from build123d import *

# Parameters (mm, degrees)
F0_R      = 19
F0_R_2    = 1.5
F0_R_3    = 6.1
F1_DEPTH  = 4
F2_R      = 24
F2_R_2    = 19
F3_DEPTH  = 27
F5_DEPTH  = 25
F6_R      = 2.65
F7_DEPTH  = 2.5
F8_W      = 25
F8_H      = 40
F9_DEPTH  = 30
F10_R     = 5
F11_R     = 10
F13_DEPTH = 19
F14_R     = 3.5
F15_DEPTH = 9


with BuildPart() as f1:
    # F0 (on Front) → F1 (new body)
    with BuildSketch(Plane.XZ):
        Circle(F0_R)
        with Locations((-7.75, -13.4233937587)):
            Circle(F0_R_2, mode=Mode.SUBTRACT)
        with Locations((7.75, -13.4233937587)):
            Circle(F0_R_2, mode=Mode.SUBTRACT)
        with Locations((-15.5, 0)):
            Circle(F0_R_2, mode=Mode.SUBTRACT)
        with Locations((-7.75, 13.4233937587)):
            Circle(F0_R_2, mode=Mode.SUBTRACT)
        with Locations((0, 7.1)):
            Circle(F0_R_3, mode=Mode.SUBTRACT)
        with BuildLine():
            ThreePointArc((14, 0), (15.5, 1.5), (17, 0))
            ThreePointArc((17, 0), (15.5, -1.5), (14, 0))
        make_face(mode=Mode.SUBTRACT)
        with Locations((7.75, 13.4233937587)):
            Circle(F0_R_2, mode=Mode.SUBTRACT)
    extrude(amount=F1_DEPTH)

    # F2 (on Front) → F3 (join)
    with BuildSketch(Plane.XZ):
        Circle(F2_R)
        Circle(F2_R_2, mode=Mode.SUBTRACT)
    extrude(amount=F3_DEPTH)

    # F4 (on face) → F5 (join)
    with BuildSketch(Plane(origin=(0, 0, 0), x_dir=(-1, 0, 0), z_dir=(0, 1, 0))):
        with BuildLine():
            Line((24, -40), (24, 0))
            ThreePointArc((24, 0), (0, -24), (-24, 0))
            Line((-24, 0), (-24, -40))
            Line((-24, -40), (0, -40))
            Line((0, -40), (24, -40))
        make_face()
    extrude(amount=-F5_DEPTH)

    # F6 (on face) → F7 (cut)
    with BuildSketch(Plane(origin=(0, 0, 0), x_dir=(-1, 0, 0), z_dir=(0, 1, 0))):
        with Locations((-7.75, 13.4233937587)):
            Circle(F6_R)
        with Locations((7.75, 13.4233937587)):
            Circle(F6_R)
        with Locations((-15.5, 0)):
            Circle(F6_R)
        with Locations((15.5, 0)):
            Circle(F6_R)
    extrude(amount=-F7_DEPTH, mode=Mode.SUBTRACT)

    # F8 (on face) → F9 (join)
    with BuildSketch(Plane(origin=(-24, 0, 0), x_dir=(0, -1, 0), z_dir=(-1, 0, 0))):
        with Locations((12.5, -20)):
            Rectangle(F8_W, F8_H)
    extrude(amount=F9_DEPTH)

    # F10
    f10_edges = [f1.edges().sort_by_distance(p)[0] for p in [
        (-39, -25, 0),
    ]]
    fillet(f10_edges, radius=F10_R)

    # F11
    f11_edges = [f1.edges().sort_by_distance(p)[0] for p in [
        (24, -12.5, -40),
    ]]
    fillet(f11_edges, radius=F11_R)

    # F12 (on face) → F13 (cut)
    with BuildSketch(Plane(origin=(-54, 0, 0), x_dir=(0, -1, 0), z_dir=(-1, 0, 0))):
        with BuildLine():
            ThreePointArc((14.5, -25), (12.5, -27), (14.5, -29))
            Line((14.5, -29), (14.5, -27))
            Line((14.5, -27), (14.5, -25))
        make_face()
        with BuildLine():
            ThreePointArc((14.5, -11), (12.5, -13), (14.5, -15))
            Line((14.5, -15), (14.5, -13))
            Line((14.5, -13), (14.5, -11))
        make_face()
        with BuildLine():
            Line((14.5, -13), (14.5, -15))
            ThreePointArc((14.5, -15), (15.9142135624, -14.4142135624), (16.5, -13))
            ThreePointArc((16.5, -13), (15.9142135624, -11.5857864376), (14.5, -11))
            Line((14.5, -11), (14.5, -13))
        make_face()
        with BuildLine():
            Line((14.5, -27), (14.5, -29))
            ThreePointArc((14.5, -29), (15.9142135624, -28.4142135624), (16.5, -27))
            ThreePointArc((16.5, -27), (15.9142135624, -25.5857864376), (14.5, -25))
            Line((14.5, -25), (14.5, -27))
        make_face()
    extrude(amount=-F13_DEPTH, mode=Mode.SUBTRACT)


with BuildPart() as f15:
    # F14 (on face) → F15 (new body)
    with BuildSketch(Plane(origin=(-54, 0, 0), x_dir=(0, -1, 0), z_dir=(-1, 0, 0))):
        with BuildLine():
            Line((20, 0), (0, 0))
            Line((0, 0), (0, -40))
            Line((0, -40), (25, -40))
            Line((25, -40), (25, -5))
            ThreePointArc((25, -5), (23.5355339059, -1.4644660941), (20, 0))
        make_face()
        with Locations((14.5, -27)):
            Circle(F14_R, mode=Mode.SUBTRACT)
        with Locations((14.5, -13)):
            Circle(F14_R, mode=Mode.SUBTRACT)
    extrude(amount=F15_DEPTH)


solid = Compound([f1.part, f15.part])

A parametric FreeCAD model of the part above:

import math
import FreeCAD as App
import Part
import Sketcher

V = App.Vector
Q = App.Units.Quantity


def edges_at(feature, points):
    """Names of the edges that pass closest to the given points."""
    edges = feature.Shape.Edges
    near = lambda p: min(range(len(edges)), key=lambda i: edges[i].distToShape(Part.Vertex(*p))[0])
    return sorted({f"Edge{near(p) + 1}" for p in points})

doc = App.newDocument("Part")
body = doc.addObject("PartDesign::Body", "Body")

# Sketch on XZ plane
sketch1 = doc.addObject("Sketcher::SketchObject", "Sketch")
body.addObject(sketch1)
sketch1.AttachmentSupport = (doc.XZ_Plane, [""])
sketch1.MapMode = "FlatFace"
sketch1.addGeometry([
    Part.Circle(V(0, 0, 0), V(0, 0, 1), 19),  # 0
    Part.Circle(V(-7.75, -13.423394, 0), V(0, 0, 1), 1.5),  # 1
    Part.Circle(V(7.75, -13.423394, 0), V(0, 0, 1), 1.5),  # 2
    Part.Circle(V(-15.5, 0, 0), V(0, 0, 1), 1.5),  # 3
    Part.Circle(V(-7.75, 13.423394, 0), V(0, 0, 1), 1.5),  # 4
    Part.Circle(V(0, 7.1, 0), V(0, 0, 1), 6.1),  # 5
    Part.Circle(V(15.5, 0, 0), V(0, 0, 1), 1.5),  # 6
    Part.Circle(V(7.75, 13.423394, 0), V(0, 0, 1), 1.5),  # 7
], False)
sketch1.addConstraint([
    Sketcher.Constraint("Coincident", 0, 3, -1, 1),
    Sketcher.Constraint("Equal", 1, 2),
    Sketcher.Constraint("Equal", 2, 3),
    Sketcher.Constraint("Equal", 3, 4),
    Sketcher.Constraint("Equal", 4, 6),
    Sketcher.Constraint("Equal", 6, 7),
    Sketcher.Constraint("Symmetric", 2, 3, 4, 3, -1, 1),
    Sketcher.Constraint("Symmetric", 3, 3, 6, 3, -1, 1),
    Sketcher.Constraint("Symmetric", 1, 3, 7, 3, -1, 1),
    Sketcher.Constraint("Symmetric", 1, 3, 2, 3, -2),
    Sketcher.Constraint("PointOnObject", 3, 3, -1),
    Sketcher.Constraint("PointOnObject", 5, 3, -2),
    Sketcher.Constraint("Diameter", 0, Q("38 mm")),
    Sketcher.Constraint("Diameter", 1, Q("3 mm")),
    Sketcher.Constraint("Diameter", 5, Q("12.2 mm")),
    Sketcher.Constraint("DistanceX", 3, 3, -1, 1, Q("15.5 mm")),
    Sketcher.Constraint("DistanceY", -1, 1, 5, 3, Q("7.1 mm")),
    Sketcher.Constraint("DistanceX", 1, 3, 2, 3, Q("15.5 mm")),
    Sketcher.Constraint("DistanceY", 1, 3, -1, 1, Q("13.423394 mm")),
])
pad1 = doc.addObject("PartDesign::Pad", "Pad")
body.addObject(pad1)
pad1.Profile = sketch1
pad1.Length = 4

# Sketch on XZ plane
sketch2 = doc.addObject("Sketcher::SketchObject", "Sketch001")
body.addObject(sketch2)
sketch2.AttachmentSupport = (doc.XZ_Plane, [""])
sketch2.MapMode = "FlatFace"
sketch2.addGeometry([
    Part.Circle(V(0, 0, 0), V(0, 0, 1), 24),
    Part.Circle(V(0, 0, 0), V(0, 0, 1), 19),
], False)
sketch2.addConstraint([
    Sketcher.Constraint("Coincident", 0, 3, -1, 1),
    Sketcher.Constraint("Coincident", 1, 3, -1, 1),
    Sketcher.Constraint("Diameter", 0, Q("48 mm")),
    Sketcher.Constraint("Diameter", 1, Q("38 mm")),
])
pad2 = doc.addObject("PartDesign::Pad", "Pad001")
body.addObject(pad2)
pad2.Profile = sketch2
pad2.Length = 27

# Sketch on XZ plane
sketch3 = doc.addObject("Sketcher::SketchObject", "Sketch002")
body.addObject(sketch3)
sketch3.AttachmentSupport = (doc.XZ_Plane, [""])
sketch3.MapMode = "FlatFace"
sketch3.addGeometry([
    Part.LineSegment(V(-24, -40, 0), V(-24, 0, 0)),
    Part.ArcOfCircle(Part.Circle(V(0, 0, 0), V(0, 0, 1), 24), math.radians(180), math.radians(360)),
    Part.LineSegment(V(24, 0, 0), V(24, -40, 0)),
    Part.LineSegment(V(24, -40, 0), V(-24, -40, 0)),
], False)
sketch3.addConstraint([
    Sketcher.Constraint("Tangent", 0, 2, 1, 1),
    Sketcher.Constraint("Tangent", 1, 2, 2, 1),
    Sketcher.Constraint("Coincident", 2, 2, 3, 1),
    Sketcher.Constraint("Coincident", 3, 2, 0, 1),
    Sketcher.Constraint("Vertical", 0),
    Sketcher.Constraint("Vertical", 2),
    Sketcher.Constraint("Horizontal", 3),
    Sketcher.Constraint("Coincident", 1, 3, -1, 1),
    Sketcher.Constraint("Radius", 1, Q("24 mm")),
    Sketcher.Constraint("DistanceY", 0, 1, 0, 2, Q("40 mm")),
])
pad3 = doc.addObject("PartDesign::Pad", "Pad002")
body.addObject(pad3)
pad3.Profile = sketch3
pad3.Length = 25

# Sketch on XZ plane
sketch4 = doc.addObject("Sketcher::SketchObject", "Sketch003")
body.addObject(sketch4)
sketch4.AttachmentSupport = (doc.XZ_Plane, [""])
sketch4.MapMode = "FlatFace"
sketch4.addGeometry([
    Part.Circle(V(7.75, 13.423394, 0), V(0, 0, 1), 2.65),
    Part.Circle(V(-7.75, 13.423394, 0), V(0, 0, 1), 2.65),
    Part.Circle(V(15.5, 0, 0), V(0, 0, 1), 2.65),
    Part.Circle(V(-15.5, 0, 0), V(0, 0, 1), 2.65),
], False)
sketch4.addConstraint([
    Sketcher.Constraint("Equal", 0, 1),
    Sketcher.Constraint("Equal", 1, 2),
    Sketcher.Constraint("Equal", 2, 3),
    Sketcher.Constraint("Symmetric", 2, 3, 3, 3, -1, 1),
    Sketcher.Constraint("Symmetric", 0, 3, 1, 3, -2),
    Sketcher.Constraint("PointOnObject", 2, 3, -1),
    Sketcher.Constraint("Diameter", 0, Q("5.3 mm")),
    Sketcher.Constraint("DistanceX", 3, 3, 2, 3, Q("31 mm")),
    Sketcher.Constraint("DistanceX", 1, 3, 0, 3, Q("15.5 mm")),
    Sketcher.Constraint("DistanceY", -1, 1, 0, 3, Q("13.423394 mm")),
])
pocket1 = doc.addObject("PartDesign::Pocket", "Pocket")
body.addObject(pocket1)
pocket1.Profile = sketch4
pocket1.Length = 2.5
pocket1.Reversed = True

# Sketch on YZ plane
sketch5 = doc.addObject("Sketcher::SketchObject", "Sketch004")
body.addObject(sketch5)
sketch5.AttachmentSupport = (doc.YZ_Plane, [""])
sketch5.MapMode = "FlatFace"
sketch5.AttachmentOffset = App.Placement(V(0, 0, -24), App.Rotation())
sketch5.addGeometry([
    Part.LineSegment(V(0, 0, 0), V(0, -40, 0)),
    Part.LineSegment(V(0, -40, 0), V(-25, -40, 0)),
    Part.LineSegment(V(-25, -40, 0), V(-25, 0, 0)),
    Part.LineSegment(V(-25, 0, 0), V(0, 0, 0)),
], False)
sketch5.addConstraint([
    Sketcher.Constraint("Coincident", 0, 2, 1, 1),
    Sketcher.Constraint("Coincident", 1, 2, 2, 1),
    Sketcher.Constraint("Coincident", 2, 2, 3, 1),
    Sketcher.Constraint("Coincident", 3, 2, 0, 1),
    Sketcher.Constraint("Vertical", 0),
    Sketcher.Constraint("Horizontal", 1),
    Sketcher.Constraint("Vertical", 2),
    Sketcher.Constraint("Horizontal", 3),
    Sketcher.Constraint("Coincident", 3, 2, -1, 1),
    Sketcher.Constraint("DistanceX", 1, 2, 1, 1, Q("25 mm")),
    Sketcher.Constraint("DistanceY", 0, 2, 0, 1, Q("40 mm")),
])
pad4 = doc.addObject("PartDesign::Pad", "Pad003")
body.addObject(pad4)
pad4.Profile = sketch5
pad4.Length = 30
pad4.Reversed = True
doc.recompute()

fillet = doc.addObject("PartDesign::Fillet", "Fillet")
body.addObject(fillet)
fillet.Base = (pad4, edges_at(pad4, [(-39, -25, 0)]))
fillet.Radius = 5
doc.recompute()

fillet2 = doc.addObject("PartDesign::Fillet", "Fillet001")
body.addObject(fillet2)
fillet2.Base = (fillet, edges_at(fillet, [(24, -12.5, -40)]))
fillet2.Radius = 10

# Sketch on YZ plane
sketch6 = doc.addObject("Sketcher::SketchObject", "Sketch005")
body.addObject(sketch6)
sketch6.AttachmentSupport = (doc.YZ_Plane, [""])
sketch6.MapMode = "FlatFace"
sketch6.AttachmentOffset = App.Placement(V(0, 0, -54), App.Rotation())
sketch6.addGeometry([
    Part.ArcOfCircle(Part.Circle(V(-14.5, -27, 0), V(0, 0, 1), 2), math.radians(-90), math.radians(90)),  # 0
    Part.ArcOfCircle(Part.Circle(V(-14.5, -27, 0), V(0, 0, 1), 2), math.radians(180), math.radians(270)),  # 1
    Part.ArcOfCircle(Part.Circle(V(-14.5, -27, 0), V(0, 0, 1), 2), math.radians(90), math.radians(180)),  # 2
    Part.ArcOfCircle(Part.Circle(V(-14.5, -13, 0), V(0, 0, 1), 2), math.radians(-90), math.radians(90)),  # 3
    Part.ArcOfCircle(Part.Circle(V(-14.5, -13, 0), V(0, 0, 1), 2), math.radians(180), math.radians(270)),  # 4
    Part.ArcOfCircle(Part.Circle(V(-14.5, -13, 0), V(0, 0, 1), 2), math.radians(90), math.radians(180)),  # 5
], False)
sketch6.addConstraint([
    Sketcher.Constraint("Tangent", 0, 1, 1, 2),
    Sketcher.Constraint("Tangent", 1, 1, 2, 2),
    Sketcher.Constraint("Tangent", 2, 1, 0, 2),
    Sketcher.Constraint("Tangent", 3, 1, 4, 2),
    Sketcher.Constraint("Tangent", 4, 1, 5, 2),
    Sketcher.Constraint("Tangent", 5, 1, 3, 2),
    Sketcher.Constraint("Equal", 2, 3),
    Sketcher.Constraint("Horizontal", 2, 3, 1, 1),
    Sketcher.Constraint("Horizontal", 5, 3, 4, 1),
    Sketcher.Constraint("Vertical", 2, 3, 3, 3),
    Sketcher.Constraint("Vertical", 5, 3, 0, 1),
    Sketcher.Constraint("Vertical", 0, 1, 2, 1),
    Sketcher.Constraint("Vertical", 2, 1, 3, 1),
    Sketcher.Constraint("Vertical", 3, 1, 5, 1),
    Sketcher.Constraint("Radius", 0, Q("2 mm")),
    Sketcher.Constraint("DistanceY", 0, 3, -1, 1, Q("27 mm")),
    Sketcher.Constraint("DistanceY", 3, 3, -1, 1, Q("13 mm")),
    Sketcher.Constraint("DistanceX", 0, 3, -1, 1, Q("14.5 mm")),
])
pocket2 = doc.addObject("PartDesign::Pocket", "Pocket001")
body.addObject(pocket2)
pocket2.Profile = sketch6
pocket2.Length = 19
pocket2.Reversed = True
body2 = doc.addObject("PartDesign::Body", "Body001")

# Sketch on YZ plane
sketch7 = doc.addObject("Sketcher::SketchObject", "Sketch006")
body2.addObject(sketch7)
sketch7.AttachmentSupport = (doc.getObject("YZ_Plane001"), [""])
sketch7.MapMode = "FlatFace"
sketch7.AttachmentOffset = App.Placement(V(0, 0, -54), App.Rotation())
sketch7.addGeometry([
    Part.LineSegment(V(-20, 0, 0), V(0, 0, 0)),  # 0
    Part.LineSegment(V(0, 0, 0), V(0, -40, 0)),  # 1
    Part.LineSegment(V(0, -40, 0), V(-25, -40, 0)),  # 2
    Part.LineSegment(V(-25, -40, 0), V(-25, -5, 0)),  # 3
    Part.ArcOfCircle(Part.Circle(V(-20, -5, 0), V(0, 0, 1), 5), math.radians(90), math.radians(180)),  # 4
    Part.Circle(V(-14.5, -27, 0), V(0, 0, 1), 3.5),  # 5
    Part.Circle(V(-14.5, -13, 0), V(0, 0, 1), 3.5),  # 6
], False)
sketch7.addConstraint([
    Sketcher.Constraint("Coincident", 0, 2, 1, 1),
    Sketcher.Constraint("Coincident", 1, 2, 2, 1),
    Sketcher.Constraint("Coincident", 2, 2, 3, 1),
    Sketcher.Constraint("Tangent", 3, 2, 4, 2),
    Sketcher.Constraint("Tangent", 4, 1, 0, 1),
    Sketcher.Constraint("Horizontal", 0),
    Sketcher.Constraint("Vertical", 1),
    Sketcher.Constraint("Horizontal", 2),
    Sketcher.Constraint("Vertical", 3),
    Sketcher.Constraint("Coincident", 0, 2, -1, 1),
    Sketcher.Constraint("Equal", 5, 6),
    Sketcher.Constraint("Vertical", 5, 3, 6, 3),
    Sketcher.Constraint("Diameter", 5, Q("7 mm")),
    Sketcher.Constraint("Radius", 4, Q("5 mm")),
    Sketcher.Constraint("DistanceX", 0, 1, 0, 2, Q("20 mm")),
    Sketcher.Constraint("DistanceY", 1, 2, 1, 1, Q("40 mm")),
    Sketcher.Constraint("DistanceY", 5, 3, -1, 1, Q("27 mm")),
    Sketcher.Constraint("DistanceY", 6, 3, -1, 1, Q("13 mm")),
    Sketcher.Constraint("DistanceX", 5, 3, -1, 1, Q("14.5 mm")),
])
pad5 = doc.addObject("PartDesign::Pad", "Pad004")
body2.addObject(pad5)
pad5.Profile = sketch7
pad5.Length = 9
pad5.Reversed = True

doc.recompute()
